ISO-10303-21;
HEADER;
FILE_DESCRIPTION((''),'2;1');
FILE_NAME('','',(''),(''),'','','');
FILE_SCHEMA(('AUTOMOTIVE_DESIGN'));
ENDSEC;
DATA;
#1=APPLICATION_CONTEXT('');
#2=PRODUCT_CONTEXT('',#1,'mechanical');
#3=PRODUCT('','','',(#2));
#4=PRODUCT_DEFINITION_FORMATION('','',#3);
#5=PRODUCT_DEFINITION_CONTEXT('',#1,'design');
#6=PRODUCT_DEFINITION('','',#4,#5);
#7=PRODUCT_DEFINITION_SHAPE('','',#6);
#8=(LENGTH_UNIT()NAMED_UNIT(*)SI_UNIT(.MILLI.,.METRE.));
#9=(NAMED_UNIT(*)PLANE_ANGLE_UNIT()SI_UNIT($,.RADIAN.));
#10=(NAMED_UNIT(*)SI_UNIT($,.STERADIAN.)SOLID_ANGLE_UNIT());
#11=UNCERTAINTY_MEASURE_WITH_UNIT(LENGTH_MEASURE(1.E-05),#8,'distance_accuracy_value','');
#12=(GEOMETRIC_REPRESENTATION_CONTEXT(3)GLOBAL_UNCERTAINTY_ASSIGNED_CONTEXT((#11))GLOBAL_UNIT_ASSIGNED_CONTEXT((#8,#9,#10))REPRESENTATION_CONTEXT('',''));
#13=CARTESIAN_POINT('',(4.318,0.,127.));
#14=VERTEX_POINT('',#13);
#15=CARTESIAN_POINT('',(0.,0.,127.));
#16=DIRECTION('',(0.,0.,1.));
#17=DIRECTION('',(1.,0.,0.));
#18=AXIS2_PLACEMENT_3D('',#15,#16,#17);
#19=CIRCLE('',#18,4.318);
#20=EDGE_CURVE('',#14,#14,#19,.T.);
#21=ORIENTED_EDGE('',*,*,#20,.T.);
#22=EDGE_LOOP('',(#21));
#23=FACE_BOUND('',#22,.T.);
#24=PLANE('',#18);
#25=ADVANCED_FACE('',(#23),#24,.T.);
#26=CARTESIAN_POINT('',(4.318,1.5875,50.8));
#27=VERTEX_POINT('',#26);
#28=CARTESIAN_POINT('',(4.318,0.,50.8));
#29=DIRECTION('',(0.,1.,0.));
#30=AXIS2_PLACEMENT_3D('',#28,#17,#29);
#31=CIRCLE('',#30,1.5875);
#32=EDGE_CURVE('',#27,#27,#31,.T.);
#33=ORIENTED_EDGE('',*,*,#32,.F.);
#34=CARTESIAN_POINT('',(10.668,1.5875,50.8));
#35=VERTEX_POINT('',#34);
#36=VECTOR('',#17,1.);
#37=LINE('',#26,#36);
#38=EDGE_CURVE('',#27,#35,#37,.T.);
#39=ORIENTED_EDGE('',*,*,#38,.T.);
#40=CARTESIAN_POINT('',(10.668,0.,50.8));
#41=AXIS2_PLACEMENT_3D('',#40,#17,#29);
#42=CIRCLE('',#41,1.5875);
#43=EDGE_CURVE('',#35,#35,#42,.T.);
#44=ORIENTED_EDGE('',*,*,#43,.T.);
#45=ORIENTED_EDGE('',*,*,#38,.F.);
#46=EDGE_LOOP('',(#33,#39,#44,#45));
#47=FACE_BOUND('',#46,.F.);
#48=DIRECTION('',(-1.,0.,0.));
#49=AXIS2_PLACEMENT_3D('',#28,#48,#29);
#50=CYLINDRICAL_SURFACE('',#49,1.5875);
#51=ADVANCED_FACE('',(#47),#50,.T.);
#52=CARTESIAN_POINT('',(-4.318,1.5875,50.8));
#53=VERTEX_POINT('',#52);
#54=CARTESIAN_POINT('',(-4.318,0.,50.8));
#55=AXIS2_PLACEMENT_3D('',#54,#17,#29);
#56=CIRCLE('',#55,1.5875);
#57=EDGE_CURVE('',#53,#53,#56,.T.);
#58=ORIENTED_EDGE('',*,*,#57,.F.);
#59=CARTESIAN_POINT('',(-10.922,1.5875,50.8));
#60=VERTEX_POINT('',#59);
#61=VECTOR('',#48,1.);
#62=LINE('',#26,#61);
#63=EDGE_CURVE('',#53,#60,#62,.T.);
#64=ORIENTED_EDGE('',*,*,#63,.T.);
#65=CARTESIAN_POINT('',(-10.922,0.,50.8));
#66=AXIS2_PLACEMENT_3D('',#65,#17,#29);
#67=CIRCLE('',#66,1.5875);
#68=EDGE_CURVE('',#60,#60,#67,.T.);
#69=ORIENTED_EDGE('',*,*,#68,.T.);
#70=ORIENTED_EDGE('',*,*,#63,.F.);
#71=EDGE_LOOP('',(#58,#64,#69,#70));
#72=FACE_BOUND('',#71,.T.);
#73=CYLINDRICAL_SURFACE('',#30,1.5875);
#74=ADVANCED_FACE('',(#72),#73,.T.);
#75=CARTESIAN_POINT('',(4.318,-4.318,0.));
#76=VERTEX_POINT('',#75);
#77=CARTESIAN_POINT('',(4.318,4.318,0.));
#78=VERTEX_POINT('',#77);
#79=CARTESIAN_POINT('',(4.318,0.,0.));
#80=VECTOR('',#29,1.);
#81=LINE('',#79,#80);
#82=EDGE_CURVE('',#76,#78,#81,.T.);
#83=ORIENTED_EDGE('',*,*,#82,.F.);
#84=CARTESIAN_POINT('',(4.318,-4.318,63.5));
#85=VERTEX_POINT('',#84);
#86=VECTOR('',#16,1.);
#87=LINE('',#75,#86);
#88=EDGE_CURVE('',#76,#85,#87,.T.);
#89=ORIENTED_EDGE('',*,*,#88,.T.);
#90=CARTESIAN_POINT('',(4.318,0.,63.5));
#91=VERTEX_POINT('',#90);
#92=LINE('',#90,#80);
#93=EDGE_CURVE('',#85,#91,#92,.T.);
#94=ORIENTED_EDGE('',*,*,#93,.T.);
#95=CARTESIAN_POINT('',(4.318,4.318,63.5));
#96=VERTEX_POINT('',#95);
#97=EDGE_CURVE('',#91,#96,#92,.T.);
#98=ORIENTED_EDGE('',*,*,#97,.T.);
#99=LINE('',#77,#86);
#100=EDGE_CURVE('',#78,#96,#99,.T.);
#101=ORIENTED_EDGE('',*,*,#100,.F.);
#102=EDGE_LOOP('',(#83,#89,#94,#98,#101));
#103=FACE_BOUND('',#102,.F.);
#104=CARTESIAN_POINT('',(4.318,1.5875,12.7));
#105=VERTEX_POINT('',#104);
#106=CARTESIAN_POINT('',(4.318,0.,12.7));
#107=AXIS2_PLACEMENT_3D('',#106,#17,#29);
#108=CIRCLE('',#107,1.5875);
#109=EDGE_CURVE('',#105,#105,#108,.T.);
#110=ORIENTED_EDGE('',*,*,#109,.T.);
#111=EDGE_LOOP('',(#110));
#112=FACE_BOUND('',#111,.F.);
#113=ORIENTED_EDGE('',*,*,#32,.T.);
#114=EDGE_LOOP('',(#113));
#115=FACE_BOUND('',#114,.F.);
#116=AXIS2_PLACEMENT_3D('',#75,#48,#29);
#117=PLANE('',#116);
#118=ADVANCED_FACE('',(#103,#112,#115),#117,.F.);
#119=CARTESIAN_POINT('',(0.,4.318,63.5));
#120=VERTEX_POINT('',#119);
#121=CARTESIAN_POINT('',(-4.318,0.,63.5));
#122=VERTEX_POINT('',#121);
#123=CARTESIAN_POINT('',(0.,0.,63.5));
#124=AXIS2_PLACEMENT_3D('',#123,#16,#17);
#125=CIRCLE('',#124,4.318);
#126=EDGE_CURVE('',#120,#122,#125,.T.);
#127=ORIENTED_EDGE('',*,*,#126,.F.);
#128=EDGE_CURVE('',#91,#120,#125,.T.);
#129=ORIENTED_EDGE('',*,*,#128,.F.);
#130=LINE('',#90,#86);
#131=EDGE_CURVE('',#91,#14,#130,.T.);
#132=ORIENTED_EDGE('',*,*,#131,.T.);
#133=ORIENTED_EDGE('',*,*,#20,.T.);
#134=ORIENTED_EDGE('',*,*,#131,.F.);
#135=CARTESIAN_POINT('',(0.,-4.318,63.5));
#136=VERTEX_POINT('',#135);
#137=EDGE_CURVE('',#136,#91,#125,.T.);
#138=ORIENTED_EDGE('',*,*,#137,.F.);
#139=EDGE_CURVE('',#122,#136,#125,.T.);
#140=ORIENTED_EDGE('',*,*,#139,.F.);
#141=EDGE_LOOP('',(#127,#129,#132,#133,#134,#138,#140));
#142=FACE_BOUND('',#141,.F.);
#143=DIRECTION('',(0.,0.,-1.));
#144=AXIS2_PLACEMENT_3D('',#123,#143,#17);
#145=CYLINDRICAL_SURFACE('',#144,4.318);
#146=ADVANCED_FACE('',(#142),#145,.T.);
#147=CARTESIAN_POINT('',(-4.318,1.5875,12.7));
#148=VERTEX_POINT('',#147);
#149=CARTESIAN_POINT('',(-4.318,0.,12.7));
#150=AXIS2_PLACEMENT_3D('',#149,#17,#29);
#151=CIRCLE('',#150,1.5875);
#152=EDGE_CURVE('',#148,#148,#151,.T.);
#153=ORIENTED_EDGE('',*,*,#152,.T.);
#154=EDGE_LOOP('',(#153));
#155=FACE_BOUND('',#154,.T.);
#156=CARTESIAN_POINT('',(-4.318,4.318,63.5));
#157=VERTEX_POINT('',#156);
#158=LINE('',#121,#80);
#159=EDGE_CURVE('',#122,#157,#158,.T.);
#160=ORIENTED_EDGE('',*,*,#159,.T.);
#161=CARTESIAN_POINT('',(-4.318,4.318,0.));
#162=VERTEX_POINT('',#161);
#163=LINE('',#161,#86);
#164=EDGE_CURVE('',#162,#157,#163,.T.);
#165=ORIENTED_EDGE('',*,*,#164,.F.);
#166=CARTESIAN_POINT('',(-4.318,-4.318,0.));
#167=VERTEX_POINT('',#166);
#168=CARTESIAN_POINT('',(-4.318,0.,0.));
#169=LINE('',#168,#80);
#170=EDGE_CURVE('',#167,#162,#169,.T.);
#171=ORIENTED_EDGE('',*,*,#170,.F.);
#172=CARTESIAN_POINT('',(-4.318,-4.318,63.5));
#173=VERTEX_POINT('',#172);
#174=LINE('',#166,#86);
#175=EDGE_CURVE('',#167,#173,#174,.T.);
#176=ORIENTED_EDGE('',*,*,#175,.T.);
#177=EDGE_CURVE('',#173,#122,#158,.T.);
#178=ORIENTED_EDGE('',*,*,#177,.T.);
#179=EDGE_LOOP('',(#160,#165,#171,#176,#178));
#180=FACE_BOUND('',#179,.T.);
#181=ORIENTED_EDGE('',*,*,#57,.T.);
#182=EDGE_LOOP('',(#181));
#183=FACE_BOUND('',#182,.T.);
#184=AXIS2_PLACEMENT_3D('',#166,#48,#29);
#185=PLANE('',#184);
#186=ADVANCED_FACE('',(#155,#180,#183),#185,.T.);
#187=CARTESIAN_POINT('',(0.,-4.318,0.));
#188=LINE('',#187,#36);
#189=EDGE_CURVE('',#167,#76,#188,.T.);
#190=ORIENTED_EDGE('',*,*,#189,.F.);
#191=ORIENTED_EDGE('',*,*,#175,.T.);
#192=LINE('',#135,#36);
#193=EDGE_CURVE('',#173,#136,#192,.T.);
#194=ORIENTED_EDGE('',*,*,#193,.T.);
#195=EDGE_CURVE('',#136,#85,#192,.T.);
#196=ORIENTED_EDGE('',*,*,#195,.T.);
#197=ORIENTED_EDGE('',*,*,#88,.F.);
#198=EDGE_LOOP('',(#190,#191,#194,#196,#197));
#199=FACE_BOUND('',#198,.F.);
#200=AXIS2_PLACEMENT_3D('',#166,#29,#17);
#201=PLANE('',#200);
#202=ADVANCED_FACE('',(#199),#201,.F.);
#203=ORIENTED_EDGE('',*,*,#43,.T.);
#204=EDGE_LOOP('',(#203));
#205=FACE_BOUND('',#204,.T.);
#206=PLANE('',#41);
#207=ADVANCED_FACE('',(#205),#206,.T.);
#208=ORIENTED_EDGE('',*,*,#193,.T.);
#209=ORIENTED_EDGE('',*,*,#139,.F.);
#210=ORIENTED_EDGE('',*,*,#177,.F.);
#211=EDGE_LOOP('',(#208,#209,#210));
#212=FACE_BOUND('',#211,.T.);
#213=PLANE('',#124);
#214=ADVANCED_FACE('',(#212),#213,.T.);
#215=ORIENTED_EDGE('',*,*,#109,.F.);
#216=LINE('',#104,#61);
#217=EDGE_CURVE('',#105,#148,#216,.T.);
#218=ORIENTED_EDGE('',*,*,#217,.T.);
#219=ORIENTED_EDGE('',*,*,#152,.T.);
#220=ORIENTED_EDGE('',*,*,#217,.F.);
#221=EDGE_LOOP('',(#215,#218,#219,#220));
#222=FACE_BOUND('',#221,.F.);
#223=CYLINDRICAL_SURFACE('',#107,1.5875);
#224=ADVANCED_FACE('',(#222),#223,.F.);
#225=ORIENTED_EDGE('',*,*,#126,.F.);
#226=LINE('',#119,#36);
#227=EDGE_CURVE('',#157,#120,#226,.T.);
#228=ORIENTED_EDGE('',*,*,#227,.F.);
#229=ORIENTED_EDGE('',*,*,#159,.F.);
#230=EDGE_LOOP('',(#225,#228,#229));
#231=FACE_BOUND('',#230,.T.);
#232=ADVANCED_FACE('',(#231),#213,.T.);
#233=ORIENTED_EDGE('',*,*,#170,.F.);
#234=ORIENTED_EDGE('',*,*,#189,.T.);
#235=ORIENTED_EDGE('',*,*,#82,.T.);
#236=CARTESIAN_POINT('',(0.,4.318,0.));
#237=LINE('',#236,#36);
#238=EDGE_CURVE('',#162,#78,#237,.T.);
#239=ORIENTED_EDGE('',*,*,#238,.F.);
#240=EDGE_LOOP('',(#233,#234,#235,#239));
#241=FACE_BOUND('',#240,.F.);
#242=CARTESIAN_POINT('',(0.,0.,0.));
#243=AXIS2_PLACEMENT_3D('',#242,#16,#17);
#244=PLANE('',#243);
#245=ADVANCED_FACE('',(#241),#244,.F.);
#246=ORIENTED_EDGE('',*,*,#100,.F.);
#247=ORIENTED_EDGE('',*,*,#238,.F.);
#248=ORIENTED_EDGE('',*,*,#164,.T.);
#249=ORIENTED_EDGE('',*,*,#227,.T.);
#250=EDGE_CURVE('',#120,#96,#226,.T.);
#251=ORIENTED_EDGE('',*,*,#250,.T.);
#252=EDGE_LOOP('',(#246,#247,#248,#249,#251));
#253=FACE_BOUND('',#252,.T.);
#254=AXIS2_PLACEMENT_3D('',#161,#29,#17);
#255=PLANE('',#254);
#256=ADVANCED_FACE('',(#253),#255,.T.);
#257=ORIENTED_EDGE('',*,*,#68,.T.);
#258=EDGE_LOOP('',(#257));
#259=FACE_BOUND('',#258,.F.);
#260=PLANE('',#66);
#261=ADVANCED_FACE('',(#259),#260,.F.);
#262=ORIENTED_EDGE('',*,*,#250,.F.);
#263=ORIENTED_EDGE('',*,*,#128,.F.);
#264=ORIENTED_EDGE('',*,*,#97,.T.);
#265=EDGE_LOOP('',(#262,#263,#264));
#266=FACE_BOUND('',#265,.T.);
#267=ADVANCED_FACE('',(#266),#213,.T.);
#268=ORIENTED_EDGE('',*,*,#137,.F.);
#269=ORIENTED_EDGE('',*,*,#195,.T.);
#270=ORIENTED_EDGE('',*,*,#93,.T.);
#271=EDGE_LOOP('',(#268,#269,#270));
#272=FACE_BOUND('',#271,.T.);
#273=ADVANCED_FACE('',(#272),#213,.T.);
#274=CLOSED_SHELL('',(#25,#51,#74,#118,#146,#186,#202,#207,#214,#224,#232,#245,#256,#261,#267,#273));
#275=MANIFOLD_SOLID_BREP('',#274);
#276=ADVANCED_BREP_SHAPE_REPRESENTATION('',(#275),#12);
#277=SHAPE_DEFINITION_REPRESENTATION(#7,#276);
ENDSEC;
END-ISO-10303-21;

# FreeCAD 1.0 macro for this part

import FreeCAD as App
import Part
import Sketcher
Q = App.Units.Quantity

doc = App.newDocument("Part")
params = doc.addObject("Spreadsheet::Sheet", "Params")
for row, (alias, value) in enumerate([
    ("sketch1_width", "0.34 in"),
    ("pad1_length", "2.5 in"),
    ("sketch2_diameter", "0.34 in"),
    ("pad2_length", "2.5 in"),
    ("sketch3_diameter", "0.125 in"),
    ("pocket1_length", "1 in"),
    ("sketch4_diameter", "0.125 in"),
    ("pad3_length", "0.25 in"),
    ("pad3_length2", "0.6 in"),
], start=1):
    params.set(f"A{row}", alias)
    params.set(f"B{row}", "=" + value)
    params.setAlias(f"B{row}", alias)

body = doc.addObject("PartDesign::Body", "Body")

# Sketch on XY plane
sketch1 = doc.addObject("Sketcher::SketchObject", "Sketch")
body.addObject(sketch1)
sketch1.AttachmentSupport = (doc.XY_Plane, [""])
sketch1.MapMode = "FlatFace"
sketch1.addGeometry(Part.LineSegment(App.Vector(-4.318, 4.318, 0), App.Vector(-4.318, -4.318, 0)), False)
sketch1.addGeometry(Part.LineSegment(App.Vector(-4.318, -4.318, 0), App.Vector(4.318, -4.318, 0)), False)
sketch1.addGeometry(Part.LineSegment(App.Vector(4.318, -4.318, 0), App.Vector(4.318, 4.318, 0)), False)
sketch1.addGeometry(Part.LineSegment(App.Vector(4.318, 4.318, 0), App.Vector(-4.318, 4.318, 0)), False)
sketch1.addConstraint(Sketcher.Constraint("Coincident", 0, 2, 1, 1))
sketch1.addConstraint(Sketcher.Constraint("Coincident", 1, 2, 2, 1))
sketch1.addConstraint(Sketcher.Constraint("Coincident", 2, 2, 3, 1))
sketch1.addConstraint(Sketcher.Constraint("Coincident", 3, 2, 0, 1))
sketch1.addConstraint(Sketcher.Constraint("Vertical", 0))
sketch1.addConstraint(Sketcher.Constraint("Horizontal", 1))
sketch1.addConstraint(Sketcher.Constraint("Vertical", 2))
sketch1.addConstraint(Sketcher.Constraint("Horizontal", 3))
sketch1.addConstraint(Sketcher.Constraint("Symmetric", 0, 2, 2, 2, -1, 1))
sketch1.addConstraint(Sketcher.Constraint("Equal", 3, 0))
sketch1.addConstraint(Sketcher.Constraint("DistanceX", 1, 1, 1, 2, Q("0.34 in")))
sketch1.setExpression("Constraints[10]", "Params.sketch1_width")
pad1 = doc.addObject("PartDesign::Pad", "Pad")
body.addObject(pad1)
pad1.Profile = sketch1
pad1.setExpression("Length", "Params.pad1_length")

# Sketch on XY plane
sketch2 = doc.addObject("Sketcher::SketchObject", "Sketch001")
body.addObject(sketch2)
sketch2.AttachmentSupport = (doc.XY_Plane, [""])
sketch2.MapMode = "FlatFace"
sketch2.AttachmentOffset = App.Placement(App.Vector(0, 0, 2.5 * 25.4), App.Rotation())
sketch2.addGeometry(Part.Circle(App.Vector(0, 0, 0), App.Vector(0, 0, 1), 4.318), False)
sketch2.addConstraint(Sketcher.Constraint("Coincident", 0, 3, -1, 1))
sketch2.addConstraint(Sketcher.Constraint("Diameter", 0, Q("0.34 in")))
sketch2.setExpression("Constraints[1]", "Params.sketch2_diameter")
pad2 = doc.addObject("PartDesign::Pad", "Pad001")
body.addObject(pad2)
pad2.Profile = sketch2
pad2.setExpression("Length", "Params.pad2_length")

# Sketch on YZ plane
sketch3 = doc.addObject("Sketcher::SketchObject", "Sketch002")
body.addObject(sketch3)
sketch3.AttachmentSupport = (doc.YZ_Plane, [""])
sketch3.MapMode = "FlatFace"
sketch3.AttachmentOffset = App.Placement(App.Vector(0, 0, 0.17 * 25.4), App.Rotation())
sketch3.addGeometry(Part.Circle(App.Vector(0, 12.7, 0), App.Vector(0, 0, 1), 1.5875), False)
sketch3.addConstraint(Sketcher.Constraint("PointOnObject", 0, 3, -2))
sketch3.addConstraint(Sketcher.Constraint("Diameter", 0, Q("0.125 in")))
sketch3.addConstraint(Sketcher.Constraint("DistanceY", -1, 1, 0, 3, Q("0.5 in")))
sketch3.setExpression("Constraints[1]", "Params.sketch3_diameter")
pocket1 = doc.addObject("PartDesign::Pocket", "Pocket")
body.addObject(pocket1)
pocket1.Profile = sketch3
pocket1.setExpression("Length", "Params.pocket1_length")

# Sketch on YZ plane
sketch4 = doc.addObject("Sketcher::SketchObject", "Sketch003")
body.addObject(sketch4)
sketch4.AttachmentSupport = (doc.YZ_Plane, [""])
sketch4.MapMode = "FlatFace"
sketch4.AttachmentOffset = App.Placement(App.Vector(0, 0, 0.17 * 25.4), App.Rotation())
sketch4.addGeometry(Part.Circle(App.Vector(0, 50.8, 0), App.Vector(0, 0, 1), 1.5875), False)
sketch4.addConstraint(Sketcher.Constraint("PointOnObject", 0, 3, -2))
sketch4.addConstraint(Sketcher.Constraint("Diameter", 0, Q("0.125 in")))
sketch4.addConstraint(Sketcher.Constraint("DistanceY", -1, 1, 0, 3, Q("2 in")))
sketch4.setExpression("Constraints[1]", "Params.sketch4_diameter")
pad3 = doc.addObject("PartDesign::Pad", "Pad002")
body.addObject(pad3)
pad3.Profile = sketch4
pad3.Type = "TwoLengths"
pad3.setExpression("Length", "Params.pad3_length")
pad3.setExpression("Length2", "Params.pad3_length2")

doc.recompute()
